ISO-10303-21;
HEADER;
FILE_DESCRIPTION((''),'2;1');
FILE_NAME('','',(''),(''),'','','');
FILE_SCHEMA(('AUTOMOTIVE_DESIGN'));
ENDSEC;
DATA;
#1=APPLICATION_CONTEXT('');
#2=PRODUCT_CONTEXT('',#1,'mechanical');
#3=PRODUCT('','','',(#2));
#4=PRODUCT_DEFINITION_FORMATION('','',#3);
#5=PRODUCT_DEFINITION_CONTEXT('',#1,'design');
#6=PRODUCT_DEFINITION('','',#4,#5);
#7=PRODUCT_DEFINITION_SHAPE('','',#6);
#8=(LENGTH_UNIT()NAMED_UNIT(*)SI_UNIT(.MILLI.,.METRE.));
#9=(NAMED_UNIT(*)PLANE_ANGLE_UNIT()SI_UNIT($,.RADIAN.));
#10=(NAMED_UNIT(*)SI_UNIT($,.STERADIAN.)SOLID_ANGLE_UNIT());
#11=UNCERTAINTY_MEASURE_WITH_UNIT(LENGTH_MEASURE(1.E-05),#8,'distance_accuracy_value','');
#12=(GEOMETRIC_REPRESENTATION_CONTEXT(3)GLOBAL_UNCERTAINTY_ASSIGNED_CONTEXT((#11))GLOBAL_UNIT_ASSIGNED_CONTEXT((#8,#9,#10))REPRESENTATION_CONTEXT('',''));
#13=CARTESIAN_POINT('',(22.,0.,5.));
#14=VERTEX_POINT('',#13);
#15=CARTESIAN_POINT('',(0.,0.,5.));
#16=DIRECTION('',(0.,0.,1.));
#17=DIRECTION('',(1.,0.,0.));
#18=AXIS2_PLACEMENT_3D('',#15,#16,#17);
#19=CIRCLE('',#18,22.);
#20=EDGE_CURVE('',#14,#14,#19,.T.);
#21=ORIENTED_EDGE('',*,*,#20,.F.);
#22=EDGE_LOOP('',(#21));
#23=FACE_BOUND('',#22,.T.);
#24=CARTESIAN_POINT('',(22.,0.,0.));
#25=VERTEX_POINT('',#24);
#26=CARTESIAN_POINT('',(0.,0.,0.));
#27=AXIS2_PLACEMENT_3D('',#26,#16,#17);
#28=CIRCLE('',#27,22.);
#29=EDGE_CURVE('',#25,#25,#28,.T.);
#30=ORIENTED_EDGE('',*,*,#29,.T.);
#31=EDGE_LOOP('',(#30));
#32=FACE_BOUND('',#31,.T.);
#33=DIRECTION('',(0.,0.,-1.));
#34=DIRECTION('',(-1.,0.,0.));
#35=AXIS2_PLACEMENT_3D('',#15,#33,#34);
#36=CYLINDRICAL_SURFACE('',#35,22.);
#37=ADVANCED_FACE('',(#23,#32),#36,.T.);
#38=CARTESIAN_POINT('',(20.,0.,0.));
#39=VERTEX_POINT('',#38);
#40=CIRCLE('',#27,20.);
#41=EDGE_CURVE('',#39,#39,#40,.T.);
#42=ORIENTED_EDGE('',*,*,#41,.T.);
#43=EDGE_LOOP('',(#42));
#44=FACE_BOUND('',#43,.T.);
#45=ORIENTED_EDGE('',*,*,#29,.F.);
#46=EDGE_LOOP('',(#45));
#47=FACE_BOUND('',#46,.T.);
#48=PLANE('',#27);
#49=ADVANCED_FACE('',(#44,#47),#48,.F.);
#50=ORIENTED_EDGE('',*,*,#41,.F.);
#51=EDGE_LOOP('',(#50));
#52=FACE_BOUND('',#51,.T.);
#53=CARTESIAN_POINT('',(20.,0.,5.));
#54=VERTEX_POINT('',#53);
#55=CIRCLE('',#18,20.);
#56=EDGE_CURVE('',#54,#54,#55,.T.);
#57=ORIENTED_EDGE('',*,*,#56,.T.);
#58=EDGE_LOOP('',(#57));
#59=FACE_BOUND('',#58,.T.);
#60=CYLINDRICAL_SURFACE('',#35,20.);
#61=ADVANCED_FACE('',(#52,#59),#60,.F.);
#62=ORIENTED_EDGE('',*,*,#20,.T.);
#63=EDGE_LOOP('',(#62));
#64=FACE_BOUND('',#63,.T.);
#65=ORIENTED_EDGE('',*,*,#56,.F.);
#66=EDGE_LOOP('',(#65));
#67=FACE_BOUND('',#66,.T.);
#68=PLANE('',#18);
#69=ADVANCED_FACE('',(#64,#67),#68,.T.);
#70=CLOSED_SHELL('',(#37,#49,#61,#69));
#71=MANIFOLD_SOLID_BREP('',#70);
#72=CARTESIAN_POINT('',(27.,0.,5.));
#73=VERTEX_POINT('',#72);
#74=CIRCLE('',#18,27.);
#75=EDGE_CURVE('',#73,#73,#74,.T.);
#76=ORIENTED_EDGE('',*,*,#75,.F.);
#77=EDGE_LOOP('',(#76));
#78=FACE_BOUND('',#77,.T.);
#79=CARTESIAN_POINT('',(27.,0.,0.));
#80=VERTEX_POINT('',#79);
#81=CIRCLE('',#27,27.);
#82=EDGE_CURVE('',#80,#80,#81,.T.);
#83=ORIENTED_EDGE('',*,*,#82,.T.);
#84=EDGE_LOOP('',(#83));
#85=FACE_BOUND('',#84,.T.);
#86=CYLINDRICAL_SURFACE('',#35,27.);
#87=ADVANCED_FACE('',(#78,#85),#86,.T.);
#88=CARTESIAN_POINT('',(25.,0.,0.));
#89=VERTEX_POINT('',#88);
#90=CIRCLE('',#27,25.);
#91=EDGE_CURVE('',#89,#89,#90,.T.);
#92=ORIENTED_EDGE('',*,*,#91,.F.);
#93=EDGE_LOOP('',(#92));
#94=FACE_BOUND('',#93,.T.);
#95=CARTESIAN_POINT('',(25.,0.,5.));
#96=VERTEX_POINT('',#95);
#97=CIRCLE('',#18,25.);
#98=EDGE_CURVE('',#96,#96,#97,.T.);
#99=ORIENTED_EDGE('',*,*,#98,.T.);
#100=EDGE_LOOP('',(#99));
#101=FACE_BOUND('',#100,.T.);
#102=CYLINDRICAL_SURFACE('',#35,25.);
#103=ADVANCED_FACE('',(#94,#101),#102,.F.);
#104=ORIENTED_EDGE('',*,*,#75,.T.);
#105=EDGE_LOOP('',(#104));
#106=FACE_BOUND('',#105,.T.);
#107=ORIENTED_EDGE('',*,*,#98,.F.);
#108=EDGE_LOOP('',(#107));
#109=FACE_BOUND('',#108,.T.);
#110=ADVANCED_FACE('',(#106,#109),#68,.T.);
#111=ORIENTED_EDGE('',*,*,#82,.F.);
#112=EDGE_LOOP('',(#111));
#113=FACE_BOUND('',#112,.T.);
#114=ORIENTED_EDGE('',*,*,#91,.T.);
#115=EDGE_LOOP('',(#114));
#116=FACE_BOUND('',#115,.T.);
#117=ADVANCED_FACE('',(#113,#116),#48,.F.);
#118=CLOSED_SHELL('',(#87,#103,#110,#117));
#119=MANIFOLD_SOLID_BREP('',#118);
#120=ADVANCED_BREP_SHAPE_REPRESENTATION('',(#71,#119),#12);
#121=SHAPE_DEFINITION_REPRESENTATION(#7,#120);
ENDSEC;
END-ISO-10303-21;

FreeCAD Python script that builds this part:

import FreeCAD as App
import Part
import Sketcher

doc = App.newDocument("Part")
params = doc.addObject("Spreadsheet::Sheet", "Params")
for row, (alias, value) in enumerate([
    ("sketch1_diameter", "44 mm"),
    ("sketch1_diameter2", "40 mm"),
    ("pad1_length", "5 mm"),
    ("sketch2_diameter", "54 mm"),
    ("sketch2_diameter2", "50 mm"),
    ("pad2_length", "5 mm"),
], start=1):
    params.set(f"A{row}", alias)
    params.set(f"B{row}", "=" + value)
    params.setAlias(f"B{row}", alias)

body = doc.addObject("PartDesign::Body", "Body")

sketch1 = body.newObject("Sketcher::SketchObject", "Sketch")
sketch1.AttachmentSupport = (doc.getObject("XY_Plane"), [""])
sketch1.MapMode = "FlatFace"
sketch1.addGeometry([
    Part.Circle(App.Vector(0, 0, 0), App.Vector(0, 0, 1), 22),
    Part.Circle(App.Vector(0, 0, 0), App.Vector(0, 0, 1), 20),
], False)
sketch1.addConstraint([
    Sketcher.Constraint("Coincident", 0, 3, -1, 1),
    Sketcher.Constraint("Coincident", 1, 3, -1, 1),
    Sketcher.Constraint("Diameter", 0, 44.0),
    Sketcher.Constraint("Diameter", 1, 40.0),
])
sketch1.setExpression("Constraints[2]", "Params.sketch1_diameter")
sketch1.setExpression("Constraints[3]", "Params.sketch1_diameter2")
pad1 = body.newObject("PartDesign::Pad", "Pad")
pad1.Profile = sketch1
pad1.setExpression("Length", "Params.pad1_length")
body2 = doc.addObject("PartDesign::Body", "Body001")

sketch2 = body2.newObject("Sketcher::SketchObject", "Sketch001")
sketch2.AttachmentSupport = (doc.getObject("XY_Plane001"), [""])
sketch2.MapMode = "FlatFace"
sketch2.addGeometry([
    Part.Circle(App.Vector(0, 0, 0), App.Vector(0, 0, 1), 27),
    Part.Circle(App.Vector(0, 0, 0), App.Vector(0, 0, 1), 25),
], False)
sketch2.addConstraint([
    Sketcher.Constraint("Coincident", 0, 3, -1, 1),
    Sketcher.Constraint("Coincident", 1, 3, -1, 1),
    Sketcher.Constraint("Diameter", 0, 54.0),
    Sketcher.Constraint("Diameter", 1, 50.0),
])
sketch2.setExpression("Constraints[2]", "Params.sketch2_diameter")
sketch2.setExpression("Constraints[3]", "Params.sketch2_diameter2")
pad2 = body2.newObject("PartDesign::Pad", "Pad001")
pad2.Profile = sketch2
pad2.setExpression("Length", "Params.pad2_length")

doc.recompute()
